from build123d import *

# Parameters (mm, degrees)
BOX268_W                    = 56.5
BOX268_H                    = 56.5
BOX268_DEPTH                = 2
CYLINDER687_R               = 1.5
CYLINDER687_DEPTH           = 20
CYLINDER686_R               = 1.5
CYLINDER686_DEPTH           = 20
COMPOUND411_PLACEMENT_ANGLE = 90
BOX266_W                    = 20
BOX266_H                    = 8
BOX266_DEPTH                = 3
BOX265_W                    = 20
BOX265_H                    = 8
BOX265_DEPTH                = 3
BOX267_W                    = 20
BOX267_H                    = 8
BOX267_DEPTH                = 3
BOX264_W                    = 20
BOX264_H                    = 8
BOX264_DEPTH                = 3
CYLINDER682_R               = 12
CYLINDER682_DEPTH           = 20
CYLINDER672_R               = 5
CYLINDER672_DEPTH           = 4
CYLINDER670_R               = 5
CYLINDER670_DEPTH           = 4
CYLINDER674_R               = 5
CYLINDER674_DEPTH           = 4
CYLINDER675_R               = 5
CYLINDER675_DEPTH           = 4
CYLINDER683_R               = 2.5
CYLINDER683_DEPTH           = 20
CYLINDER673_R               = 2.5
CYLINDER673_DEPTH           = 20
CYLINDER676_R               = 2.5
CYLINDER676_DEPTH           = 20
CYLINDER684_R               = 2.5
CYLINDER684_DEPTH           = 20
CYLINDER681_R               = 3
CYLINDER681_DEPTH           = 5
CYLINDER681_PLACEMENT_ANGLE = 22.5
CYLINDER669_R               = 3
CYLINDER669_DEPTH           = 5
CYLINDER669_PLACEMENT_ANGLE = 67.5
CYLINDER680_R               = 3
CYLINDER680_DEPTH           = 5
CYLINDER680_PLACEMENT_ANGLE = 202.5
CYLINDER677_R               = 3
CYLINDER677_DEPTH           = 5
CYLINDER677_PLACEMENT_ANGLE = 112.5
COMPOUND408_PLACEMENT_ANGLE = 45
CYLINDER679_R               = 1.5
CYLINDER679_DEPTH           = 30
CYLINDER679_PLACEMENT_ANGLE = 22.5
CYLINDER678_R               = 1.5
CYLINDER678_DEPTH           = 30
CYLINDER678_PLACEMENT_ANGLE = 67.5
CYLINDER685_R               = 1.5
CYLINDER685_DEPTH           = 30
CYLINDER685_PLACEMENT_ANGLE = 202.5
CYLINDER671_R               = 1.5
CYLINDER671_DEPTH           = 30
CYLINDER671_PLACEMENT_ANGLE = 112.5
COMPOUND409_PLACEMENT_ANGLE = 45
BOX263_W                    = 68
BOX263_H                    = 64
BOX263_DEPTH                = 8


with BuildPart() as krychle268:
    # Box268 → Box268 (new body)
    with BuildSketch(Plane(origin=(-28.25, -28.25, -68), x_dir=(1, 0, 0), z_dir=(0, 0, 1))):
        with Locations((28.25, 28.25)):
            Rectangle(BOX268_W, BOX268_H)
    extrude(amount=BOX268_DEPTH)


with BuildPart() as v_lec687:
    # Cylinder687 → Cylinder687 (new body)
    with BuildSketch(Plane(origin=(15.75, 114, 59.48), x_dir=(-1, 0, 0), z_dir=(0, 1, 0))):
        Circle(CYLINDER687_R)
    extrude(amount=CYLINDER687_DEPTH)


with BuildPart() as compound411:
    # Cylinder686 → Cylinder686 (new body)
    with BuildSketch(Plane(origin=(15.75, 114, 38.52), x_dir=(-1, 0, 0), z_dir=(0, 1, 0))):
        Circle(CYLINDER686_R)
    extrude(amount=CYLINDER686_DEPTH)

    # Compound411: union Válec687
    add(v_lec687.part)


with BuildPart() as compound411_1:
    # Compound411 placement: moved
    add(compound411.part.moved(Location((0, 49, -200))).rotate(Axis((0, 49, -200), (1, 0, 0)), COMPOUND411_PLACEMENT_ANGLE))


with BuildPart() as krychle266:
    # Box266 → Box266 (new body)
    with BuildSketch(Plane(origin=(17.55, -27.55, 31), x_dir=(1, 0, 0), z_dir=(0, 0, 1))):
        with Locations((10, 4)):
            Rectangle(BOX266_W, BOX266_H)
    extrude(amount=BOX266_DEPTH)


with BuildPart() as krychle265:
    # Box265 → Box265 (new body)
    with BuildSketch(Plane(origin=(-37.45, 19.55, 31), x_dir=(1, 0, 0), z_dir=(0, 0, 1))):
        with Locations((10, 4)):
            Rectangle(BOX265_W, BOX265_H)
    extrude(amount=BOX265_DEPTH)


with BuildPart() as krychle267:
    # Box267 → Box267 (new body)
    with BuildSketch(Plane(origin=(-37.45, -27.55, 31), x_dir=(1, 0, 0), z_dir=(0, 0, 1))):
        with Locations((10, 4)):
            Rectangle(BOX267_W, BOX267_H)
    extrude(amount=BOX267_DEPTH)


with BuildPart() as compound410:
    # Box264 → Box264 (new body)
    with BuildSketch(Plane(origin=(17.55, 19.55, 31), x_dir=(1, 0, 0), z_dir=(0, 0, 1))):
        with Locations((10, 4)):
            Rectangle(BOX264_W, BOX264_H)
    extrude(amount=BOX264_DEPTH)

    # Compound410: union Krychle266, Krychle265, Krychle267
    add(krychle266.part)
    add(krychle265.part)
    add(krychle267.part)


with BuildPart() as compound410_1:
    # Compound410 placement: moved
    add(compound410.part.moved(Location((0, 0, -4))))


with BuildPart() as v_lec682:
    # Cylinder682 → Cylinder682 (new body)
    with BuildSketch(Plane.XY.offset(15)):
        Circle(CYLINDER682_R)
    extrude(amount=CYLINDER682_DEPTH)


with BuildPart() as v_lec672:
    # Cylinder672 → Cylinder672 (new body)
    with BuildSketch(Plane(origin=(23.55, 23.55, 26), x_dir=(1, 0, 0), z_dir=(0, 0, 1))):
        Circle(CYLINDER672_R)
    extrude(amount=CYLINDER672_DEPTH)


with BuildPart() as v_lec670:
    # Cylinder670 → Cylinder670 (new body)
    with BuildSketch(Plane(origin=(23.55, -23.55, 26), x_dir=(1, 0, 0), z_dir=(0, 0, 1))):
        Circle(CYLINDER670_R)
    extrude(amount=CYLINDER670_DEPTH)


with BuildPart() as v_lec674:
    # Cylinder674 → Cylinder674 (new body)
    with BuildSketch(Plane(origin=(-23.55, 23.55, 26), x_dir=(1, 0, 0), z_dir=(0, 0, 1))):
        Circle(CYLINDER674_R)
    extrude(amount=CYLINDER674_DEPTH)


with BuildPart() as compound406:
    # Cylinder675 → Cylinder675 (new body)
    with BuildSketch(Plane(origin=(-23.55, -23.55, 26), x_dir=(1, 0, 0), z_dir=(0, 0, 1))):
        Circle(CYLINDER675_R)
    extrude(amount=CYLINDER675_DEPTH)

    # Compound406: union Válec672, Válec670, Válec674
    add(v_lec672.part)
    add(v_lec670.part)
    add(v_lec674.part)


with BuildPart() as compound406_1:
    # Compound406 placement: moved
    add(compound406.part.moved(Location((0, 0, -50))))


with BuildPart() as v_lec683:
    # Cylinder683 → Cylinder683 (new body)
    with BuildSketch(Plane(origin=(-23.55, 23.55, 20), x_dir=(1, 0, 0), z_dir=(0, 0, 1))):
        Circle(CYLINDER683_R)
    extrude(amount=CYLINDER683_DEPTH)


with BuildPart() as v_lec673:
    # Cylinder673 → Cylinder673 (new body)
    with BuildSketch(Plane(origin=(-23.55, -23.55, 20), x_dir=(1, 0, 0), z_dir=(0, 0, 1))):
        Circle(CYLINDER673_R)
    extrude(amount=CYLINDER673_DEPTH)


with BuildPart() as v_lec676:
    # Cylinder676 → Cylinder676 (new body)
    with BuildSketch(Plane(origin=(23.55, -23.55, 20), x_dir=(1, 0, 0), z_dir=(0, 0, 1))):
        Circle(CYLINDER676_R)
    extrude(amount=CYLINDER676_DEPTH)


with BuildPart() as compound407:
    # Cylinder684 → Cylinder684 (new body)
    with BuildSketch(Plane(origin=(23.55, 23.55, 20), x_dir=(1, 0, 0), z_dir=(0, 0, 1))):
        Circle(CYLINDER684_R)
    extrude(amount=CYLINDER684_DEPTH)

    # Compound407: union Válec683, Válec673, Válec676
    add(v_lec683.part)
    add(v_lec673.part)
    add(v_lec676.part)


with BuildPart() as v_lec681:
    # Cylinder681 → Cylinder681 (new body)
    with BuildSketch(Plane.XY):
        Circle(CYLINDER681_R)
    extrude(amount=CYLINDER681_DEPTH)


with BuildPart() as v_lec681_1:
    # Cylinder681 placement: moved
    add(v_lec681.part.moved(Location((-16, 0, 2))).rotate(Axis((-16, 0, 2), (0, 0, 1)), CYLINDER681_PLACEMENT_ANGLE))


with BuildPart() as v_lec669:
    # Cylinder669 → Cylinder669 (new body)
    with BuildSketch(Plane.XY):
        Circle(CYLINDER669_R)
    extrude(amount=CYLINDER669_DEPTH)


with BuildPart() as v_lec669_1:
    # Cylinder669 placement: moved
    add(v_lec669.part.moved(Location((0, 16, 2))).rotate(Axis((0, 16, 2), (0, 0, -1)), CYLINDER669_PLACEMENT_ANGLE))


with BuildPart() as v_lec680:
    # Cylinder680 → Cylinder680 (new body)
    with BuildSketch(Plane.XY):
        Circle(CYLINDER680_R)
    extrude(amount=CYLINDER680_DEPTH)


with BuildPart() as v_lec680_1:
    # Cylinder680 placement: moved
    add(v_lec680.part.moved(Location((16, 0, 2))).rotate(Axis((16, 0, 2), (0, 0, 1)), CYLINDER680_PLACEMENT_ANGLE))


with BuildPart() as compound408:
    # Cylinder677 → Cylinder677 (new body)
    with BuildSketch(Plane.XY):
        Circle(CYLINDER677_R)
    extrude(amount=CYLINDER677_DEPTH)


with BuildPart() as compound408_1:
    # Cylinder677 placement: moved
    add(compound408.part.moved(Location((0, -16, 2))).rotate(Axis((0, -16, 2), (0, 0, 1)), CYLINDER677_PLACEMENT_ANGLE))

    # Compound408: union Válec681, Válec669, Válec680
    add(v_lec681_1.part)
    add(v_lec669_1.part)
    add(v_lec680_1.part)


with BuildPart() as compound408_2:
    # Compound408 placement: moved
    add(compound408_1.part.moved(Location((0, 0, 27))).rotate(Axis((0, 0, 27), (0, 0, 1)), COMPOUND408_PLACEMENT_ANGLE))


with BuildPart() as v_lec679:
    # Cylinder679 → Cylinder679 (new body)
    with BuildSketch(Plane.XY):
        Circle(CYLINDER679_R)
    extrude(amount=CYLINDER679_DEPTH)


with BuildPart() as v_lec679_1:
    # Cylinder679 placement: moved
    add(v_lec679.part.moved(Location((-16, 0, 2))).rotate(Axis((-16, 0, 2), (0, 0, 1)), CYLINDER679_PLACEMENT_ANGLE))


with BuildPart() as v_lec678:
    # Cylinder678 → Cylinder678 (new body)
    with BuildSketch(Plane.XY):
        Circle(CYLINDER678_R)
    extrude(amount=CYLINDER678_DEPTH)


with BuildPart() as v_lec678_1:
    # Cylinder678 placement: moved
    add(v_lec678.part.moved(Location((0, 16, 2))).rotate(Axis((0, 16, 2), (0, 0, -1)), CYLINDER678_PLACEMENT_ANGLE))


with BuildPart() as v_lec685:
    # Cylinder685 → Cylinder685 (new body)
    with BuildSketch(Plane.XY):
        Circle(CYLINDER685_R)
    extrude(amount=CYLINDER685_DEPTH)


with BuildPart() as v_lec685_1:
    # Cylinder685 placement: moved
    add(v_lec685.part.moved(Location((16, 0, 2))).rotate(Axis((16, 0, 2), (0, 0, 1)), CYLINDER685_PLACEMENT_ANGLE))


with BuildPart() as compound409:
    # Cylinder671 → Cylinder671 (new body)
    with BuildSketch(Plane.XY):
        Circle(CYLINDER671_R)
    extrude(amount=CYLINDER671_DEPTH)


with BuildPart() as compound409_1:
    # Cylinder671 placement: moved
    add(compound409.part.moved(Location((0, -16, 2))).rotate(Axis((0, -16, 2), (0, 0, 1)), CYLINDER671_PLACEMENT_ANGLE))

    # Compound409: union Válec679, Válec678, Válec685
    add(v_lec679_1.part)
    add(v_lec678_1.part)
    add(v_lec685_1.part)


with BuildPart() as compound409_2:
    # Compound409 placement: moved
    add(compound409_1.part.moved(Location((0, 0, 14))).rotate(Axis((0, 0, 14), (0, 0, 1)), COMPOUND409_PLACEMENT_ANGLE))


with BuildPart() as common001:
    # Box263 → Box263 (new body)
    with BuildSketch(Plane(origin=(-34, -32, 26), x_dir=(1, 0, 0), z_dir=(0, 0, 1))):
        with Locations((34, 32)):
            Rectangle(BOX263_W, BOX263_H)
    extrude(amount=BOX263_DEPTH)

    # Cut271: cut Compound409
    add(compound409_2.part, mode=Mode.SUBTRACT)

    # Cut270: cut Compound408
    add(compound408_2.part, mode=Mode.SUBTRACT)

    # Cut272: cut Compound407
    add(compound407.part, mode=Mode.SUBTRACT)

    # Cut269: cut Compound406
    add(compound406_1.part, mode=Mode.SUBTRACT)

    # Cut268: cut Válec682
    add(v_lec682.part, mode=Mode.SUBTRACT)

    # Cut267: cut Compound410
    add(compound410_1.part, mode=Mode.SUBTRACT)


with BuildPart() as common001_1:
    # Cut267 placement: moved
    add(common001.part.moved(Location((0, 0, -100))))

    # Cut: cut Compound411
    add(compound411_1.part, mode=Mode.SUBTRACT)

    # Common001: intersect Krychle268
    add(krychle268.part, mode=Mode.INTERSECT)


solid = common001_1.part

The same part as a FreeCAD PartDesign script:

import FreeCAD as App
import Part
import Sketcher
from FreeCAD import Vector
Q = App.Units.Quantity

doc = App.newDocument("Part")
body = doc.addObject("PartDesign::Body", "Body")

sketch1 = body.newObject("Sketcher::SketchObject", "Sketch")
sketch1.AttachmentSupport = (doc.getObject("XY_Plane"), [""])
sketch1.MapMode = "FlatFace"
sketch1.AttachmentOffset = App.Placement(Vector(0, 0, -68), App.Rotation())
sketch1.addGeometry(Part.LineSegment(Vector(-28, 28, 0), Vector(-28, -28, 0)), False)
sketch1.addGeometry(Part.LineSegment(Vector(-28, -28, 0), Vector(28, -28, 0)), False)
sketch1.addGeometry(Part.LineSegment(Vector(28, -28, 0), Vector(28, 28, 0)), False)
sketch1.addGeometry(Part.LineSegment(Vector(28, 28, 0), Vector(-28, 28, 0)), False)
sketch1.addConstraint(Sketcher.Constraint("Coincident", 0, 2, 1, 1))
sketch1.addConstraint(Sketcher.Constraint("Coincident", 1, 2, 2, 1))
sketch1.addConstraint(Sketcher.Constraint("Coincident", 2, 2, 3, 1))
sketch1.addConstraint(Sketcher.Constraint("Coincident", 3, 2, 0, 1))
sketch1.addConstraint(Sketcher.Constraint("Vertical", 0))
sketch1.addConstraint(Sketcher.Constraint("Horizontal", 1))
sketch1.addConstraint(Sketcher.Constraint("Vertical", 2))
sketch1.addConstraint(Sketcher.Constraint("Horizontal", 3))
sketch1.addConstraint(Sketcher.Constraint("Symmetric", 0, 2, 2, 2, -1, 1))
sketch1.addConstraint(Sketcher.Constraint("Equal", 3, 0))
sketch1.addConstraint(Sketcher.Constraint("DistanceX", 1, 1, 1, 2, Q("56.5 mm")))
pad1 = body.newObject("PartDesign::Pad", "Pad")
pad1.Profile = sketch1
pad1.Length = 2
body2 = doc.addObject("PartDesign::Body", "Body001")

sketch2 = body2.newObject("Sketcher::SketchObject", "Sketch001")
sketch2.AttachmentSupport = (doc.getObject("XZ_Plane001"), [""])
sketch2.MapMode = "FlatFace"
sketch2.AttachmentOffset = App.Placement(Vector(0, 0, -114), App.Rotation())
sketch2.addGeometry(Part.Circle(Vector(15.8, 59.5, 0), Vector(0, 0, 1), 1.5), False)
sketch2.addConstraint(Sketcher.Constraint("Diameter", 0, Q("3 mm")))
sketch2.addConstraint(Sketcher.Constraint("DistanceX", -1, 1, 0, 3, Q("15.75 mm")))
sketch2.addConstraint(Sketcher.Constraint("DistanceY", -1, 1, 0, 3, Q("59.48 mm")))
pad2 = body2.newObject("PartDesign::Pad", "Pad001")
pad2.Profile = sketch2
pad2.Length = 20
pad2.Reversed = True
body3 = doc.addObject("PartDesign::Body", "Body002")
body3.AllowCompound = True

sketch3 = body3.newObject("Sketcher::SketchObject", "Sketch002")
sketch3.AttachmentSupport = (doc.getObject("XZ_Plane002"), [""])
sketch3.MapMode = "FlatFace"
sketch3.AttachmentOffset = App.Placement(Vector(0, 0, -114), App.Rotation())
sketch3.addGeometry(Part.Circle(Vector(15.8, 38.5, 0), Vector(0, 0, 1), 1.5), False)
sketch3.addConstraint(Sketcher.Constraint("Diameter", 0, Q("3 mm")))
sketch3.addConstraint(Sketcher.Constraint("DistanceX", -1, 1, 0, 3, Q("15.75 mm")))
sketch3.addConstraint(Sketcher.Constraint("DistanceY", -1, 1, 0, 3, Q("38.52 mm")))
pad3 = body3.newObject("PartDesign::Pad", "Pad002")
pad3.Profile = sketch3
pad3.Length = 20
pad3.Reversed = True
doc.recompute()

boolean = body3.newObject("PartDesign::Boolean", "Boolean")
boolean.Type = "Fuse"
boolean.addObjects([body2])
body4 = doc.addObject("PartDesign::Body", "Body003")
body4.AllowCompound = True
doc.recompute()

body3.Placement = App.Placement(Vector(0, 49, -200), App.Rotation(Vector(1, 0, 0), 90))
boolean2 = body4.newObject("PartDesign::Boolean", "Boolean001")
boolean2.Type = "Fuse"
boolean2.addObjects([body3])
body5 = doc.addObject("PartDesign::Body", "Body004")

sketch4 = body5.newObject("Sketcher::SketchObject", "Sketch003")
sketch4.AttachmentSupport = (doc.getObject("XY_Plane004"), [""])
sketch4.MapMode = "FlatFace"
sketch4.AttachmentOffset = App.Placement(Vector(0, 0, 31), App.Rotation())
sketch4.addGeometry(Part.LineSegment(Vector(18, -20, 0), Vector(18, -28, 0)), False)
sketch4.addGeometry(Part.LineSegment(Vector(18, -28, 0), Vector(38, -28, 0)), False)
sketch4.addGeometry(Part.LineSegment(Vector(38, -28, 0), Vector(38, -20, 0)), False)
sketch4.addGeometry(Part.LineSegment(Vector(38, -20, 0), Vector(18, -20, 0)), False)
sketch4.addConstraint(Sketcher.Constraint("Coincident", 0, 2, 1, 1))
sketch4.addConstraint(Sketcher.Constraint("Coincident", 1, 2, 2, 1))
sketch4.addConstraint(Sketcher.Constraint("Coincident", 2, 2, 3, 1))
sketch4.addConstraint(Sketcher.Constraint("Coincident", 3, 2, 0, 1))
sketch4.addConstraint(Sketcher.Constraint("Vertical", 0))
sketch4.addConstraint(Sketcher.Constraint("Horizontal", 1))
sketch4.addConstraint(Sketcher.Constraint("Vertical", 2))
sketch4.addConstraint(Sketcher.Constraint("Horizontal", 3))
sketch4.addConstraint(Sketcher.Constraint("DistanceX", 1, 1, 1, 2, Q("20 mm")))
sketch4.addConstraint(Sketcher.Constraint("DistanceY", 0, 2, 0, 1, Q("8 mm")))
sketch4.addConstraint(Sketcher.Constraint("DistanceX", -1, 1, 0, 2, Q("17.55 mm")))
sketch4.addConstraint(Sketcher.Constraint("DistanceY", 0, 2, -1, 1, Q("27.55 mm")))
pad4 = body5.newObject("PartDesign::Pad", "Pad003")
pad4.Profile = sketch4
pad4.Length = 3
body6 = doc.addObject("PartDesign::Body", "Body005")

sketch5 = body6.newObject("Sketcher::SketchObject", "Sketch004")
sketch5.AttachmentSupport = (doc.getObject("XY_Plane005"), [""])
sketch5.MapMode = "FlatFace"
sketch5.AttachmentOffset = App.Placement(Vector(0, 0, 31), App.Rotation())
sketch5.addGeometry(Part.LineSegment(Vector(-37, 28, 0), Vector(-37, 20, 0)), False)
sketch5.addGeometry(Part.LineSegment(Vector(-37, 20, 0), Vector(-17, 20, 0)), False)
sketch5.addGeometry(Part.LineSegment(Vector(-17, 20, 0), Vector(-17, 28, 0)), False)
sketch5.addGeometry(Part.LineSegment(Vector(-17, 28, 0), Vector(-37, 28, 0)), False)
sketch5.addConstraint(Sketcher.Constraint("Coincident", 0, 2, 1, 1))
sketch5.addConstraint(Sketcher.Constraint("Coincident", 1, 2, 2, 1))
sketch5.addConstraint(Sketcher.Constraint("Coincident", 2, 2, 3, 1))
sketch5.addConstraint(Sketcher.Constraint("Coincident", 3, 2, 0, 1))
sketch5.addConstraint(Sketcher.Constraint("Vertical", 0))
sketch5.addConstraint(Sketcher.Constraint("Horizontal", 1))
sketch5.addConstraint(Sketcher.Constraint("Vertical", 2))
sketch5.addConstraint(Sketcher.Constraint("Horizontal", 3))
sketch5.addConstraint(Sketcher.Constraint("DistanceX", 1, 1, 1, 2, Q("20 mm")))
sketch5.addConstraint(Sketcher.Constraint("DistanceY", 0, 2, 0, 1, Q("8 mm")))
sketch5.addConstraint(Sketcher.Constraint("DistanceX", 0, 2, -1, 1, Q("37.45 mm")))
sketch5.addConstraint(Sketcher.Constraint("DistanceY", -1, 1, 0, 2, Q("19.55 mm")))
pad5 = body6.newObject("PartDesign::Pad", "Pad004")
pad5.Profile = sketch5
pad5.Length = 3
body7 = doc.addObject("PartDesign::Body", "Body006")

sketch6 = body7.newObject("Sketcher::SketchObject", "Sketch005")
sketch6.AttachmentSupport = (doc.getObject("XY_Plane006"), [""])
sketch6.MapMode = "FlatFace"
sketch6.AttachmentOffset = App.Placement(Vector(0, 0, 31), App.Rotation())
sketch6.addGeometry(Part.LineSegment(Vector(-37, -20, 0), Vector(-37, -28, 0)), False)
sketch6.addGeometry(Part.LineSegment(Vector(-37, -28, 0), Vector(-17, -28, 0)), False)
sketch6.addGeometry(Part.LineSegment(Vector(-17, -28, 0), Vector(-17, -20, 0)), False)
sketch6.addGeometry(Part.LineSegment(Vector(-17, -20, 0), Vector(-37, -20, 0)), False)
sketch6.addConstraint(Sketcher.Constraint("Coincident", 0, 2, 1, 1))
sketch6.addConstraint(Sketcher.Constraint("Coincident", 1, 2, 2, 1))
sketch6.addConstraint(Sketcher.Constraint("Coincident", 2, 2, 3, 1))
sketch6.addConstraint(Sketcher.Constraint("Coincident", 3, 2, 0, 1))
sketch6.addConstraint(Sketcher.Constraint("Vertical", 0))
sketch6.addConstraint(Sketcher.Constraint("Horizontal", 1))
sketch6.addConstraint(Sketcher.Constraint("Vertical", 2))
sketch6.addConstraint(Sketcher.Constraint("Horizontal", 3))
sketch6.addConstraint(Sketcher.Constraint("DistanceX", 1, 1, 1, 2, Q("20 mm")))
sketch6.addConstraint(Sketcher.Constraint("DistanceY", 0, 2, 0, 1, Q("8 mm")))
sketch6.addConstraint(Sketcher.Constraint("DistanceX", 0, 2, -1, 1, Q("37.45 mm")))
sketch6.addConstraint(Sketcher.Constraint("DistanceY", 0, 2, -1, 1, Q("27.55 mm")))
pad6 = body7.newObject("PartDesign::Pad", "Pad005")
pad6.Profile = sketch6
pad6.Length = 3
body8 = doc.addObject("PartDesign::Body", "Body007")
body8.AllowCompound = True

sketch7 = body8.newObject("Sketcher::SketchObject", "Sketch006")
sketch7.AttachmentSupport = (doc.getObject("XY_Plane007"), [""])
sketch7.MapMode = "FlatFace"
sketch7.AttachmentOffset = App.Placement(Vector(0, 0, 31), App.Rotation())
sketch7.addGeometry(Part.LineSegment(Vector(18, 28, 0), Vector(18, 20, 0)), False)
sketch7.addGeometry(Part.LineSegment(Vector(18, 20, 0), Vector(38, 20, 0)), False)
sketch7.addGeometry(Part.LineSegment(Vector(38, 20, 0), Vector(38, 28, 0)), False)
sketch7.addGeometry(Part.LineSegment(Vector(38, 28, 0), Vector(18, 28, 0)), False)
sketch7.addConstraint(Sketcher.Constraint("Coincident", 0, 2, 1, 1))
sketch7.addConstraint(Sketcher.Constraint("Coincident", 1, 2, 2, 1))
sketch7.addConstraint(Sketcher.Constraint("Coincident", 2, 2, 3, 1))
sketch7.addConstraint(Sketcher.Constraint("Coincident", 3, 2, 0, 1))
sketch7.addConstraint(Sketcher.Constraint("Vertical", 0))
sketch7.addConstraint(Sketcher.Constraint("Horizontal", 1))
sketch7.addConstraint(Sketcher.Constraint("Vertical", 2))
sketch7.addConstraint(Sketcher.Constraint("Horizontal", 3))
sketch7.addConstraint(Sketcher.Constraint("DistanceX", 1, 1, 1, 2, Q("20 mm")))
sketch7.addConstraint(Sketcher.Constraint("DistanceY", 0, 2, 0, 1, Q("8 mm")))
sketch7.addConstraint(Sketcher.Constraint("DistanceX", -1, 1, 0, 2, Q("17.55 mm")))
sketch7.addConstraint(Sketcher.Constraint("DistanceY", -1, 1, 0, 2, Q("19.55 mm")))
pad7 = body8.newObject("PartDesign::Pad", "Pad006")
pad7.Profile = sketch7
pad7.Length = 3
doc.recompute()

boolean3 = body8.newObject("PartDesign::Boolean", "Boolean002")
boolean3.Type = "Fuse"
boolean3.addObjects([body5])
doc.recompute()

boolean4 = body8.newObject("PartDesign::Boolean", "Boolean003")
boolean4.Type = "Fuse"
boolean4.addObjects([body6])
doc.recompute()

boolean5 = body8.newObject("PartDesign::Boolean", "Boolean004")
boolean5.Type = "Fuse"
boolean5.addObjects([body7])
body9 = doc.addObject("PartDesign::Body", "Body008")
body9.AllowCompound = True
doc.recompute()

body8.Placement = App.Placement(Vector(0, 0, -4), App.Rotation(Vector(0, 0, 1), 0))
boolean6 = body9.newObject("PartDesign::Boolean", "Boolean005")
boolean6.Type = "Fuse"
boolean6.addObjects([body8])
body10 = doc.addObject("PartDesign::Body", "Body009")

sketch8 = body10.newObject("Sketcher::SketchObject", "Sketch007")
sketch8.AttachmentSupport = (doc.getObject("XY_Plane009"), [""])
sketch8.MapMode = "FlatFace"
sketch8.AttachmentOffset = App.Placement(Vector(0, 0, 15), App.Rotation())
sketch8.addGeometry(Part.Circle(Vector(0, 0, 0), Vector(0, 0, 1), 12), False)
sketch8.addConstraint(Sketcher.Constraint("Coincident", 0, 3, -1, 1))
sketch8.addConstraint(Sketcher.Constraint("Diameter", 0, Q("24 mm")))
pad8 = body10.newObject("PartDesign::Pad", "Pad007")
pad8.Profile = sketch8
pad8.Length = 20
body11 = doc.addObject("PartDesign::Body", "Body010")

sketch9 = body11.newObject("Sketcher::SketchObject", "Sketch008")
sketch9.AttachmentSupport = (doc.getObject("XY_Plane010"), [""])
sketch9.MapMode = "FlatFace"
sketch9.AttachmentOffset = App.Placement(Vector(0, 0, 26), App.Rotation())
sketch9.addGeometry(Part.Circle(Vector(24, 24, 0), Vector(0, 0, 1), 5), False)
sketch9.addConstraint(Sketcher.Constraint("Diameter", 0, Q("10 mm")))
sketch9.addConstraint(Sketcher.Constraint("DistanceX", -1, 1, 0, 3, Q("23.55 mm")))
sketch9.addConstraint(Sketcher.Constraint("DistanceY", -1, 1, 0, 3, Q("23.55 mm")))
pad9 = body11.newObject("PartDesign::Pad", "Pad008")
pad9.Profile = sketch9
pad9.Length = 4
body12 = doc.addObject("PartDesign::Body", "Body011")

sketch10 = body12.newObject("Sketcher::SketchObject", "Sketch009")
sketch10.AttachmentSupport = (doc.getObject("XY_Plane011"), [""])
sketch10.MapMode = "FlatFace"
sketch10.AttachmentOffset = App.Placement(Vector(0, 0, 26), App.Rotation())
sketch10.addGeometry(Part.Circle(Vector(24, -24, 0), Vector(0, 0, 1), 5), False)
sketch10.addConstraint(Sketcher.Constraint("Diameter", 0, Q("10 mm")))
sketch10.addConstraint(Sketcher.Constraint("DistanceX", -1, 1, 0, 3, Q("23.55 mm")))
sketch10.addConstraint(Sketcher.Constraint("DistanceY", 0, 3, -1, 1, Q("23.55 mm")))
pad10 = body12.newObject("PartDesign::Pad", "Pad009")
pad10.Profile = sketch10
pad10.Length = 4
body13 = doc.addObject("PartDesign::Body", "Body012")

sketch11 = body13.newObject("Sketcher::SketchObject", "Sketch010")
sketch11.AttachmentSupport = (doc.getObject("XY_Plane012"), [""])
sketch11.MapMode = "FlatFace"
sketch11.AttachmentOffset = App.Placement(Vector(0, 0, 26), App.Rotation())
sketch11.addGeometry(Part.Circle(Vector(-24, 24, 0), Vector(0, 0, 1), 5), False)
sketch11.addConstraint(Sketcher.Constraint("Diameter", 0, Q("10 mm")))
sketch11.addConstraint(Sketcher.Constraint("DistanceX", 0, 3, -1, 1, Q("23.55 mm")))
sketch11.addConstraint(Sketcher.Constraint("DistanceY", -1, 1, 0, 3, Q("23.55 mm")))
pad11 = body13.newObject("PartDesign::Pad", "Pad010")
pad11.Profile = sketch11
pad11.Length = 4
body14 = doc.addObject("PartDesign::Body", "Body013")
body14.AllowCompound = True

sketch12 = body14.newObject("Sketcher::SketchObject", "Sketch011")
sketch12.AttachmentSupport = (doc.getObject("XY_Plane013"), [""])
sketch12.MapMode = "FlatFace"
sketch12.AttachmentOffset = App.Placement(Vector(0, 0, 26), App.Rotation())
sketch12.addGeometry(Part.Circle(Vector(-24, -24, 0), Vector(0, 0, 1), 5), False)
sketch12.addConstraint(Sketcher.Constraint("Diameter", 0, Q("10 mm")))
sketch12.addConstraint(Sketcher.Constraint("DistanceX", 0, 3, -1, 1, Q("23.55 mm")))
sketch12.addConstraint(Sketcher.Constraint("DistanceY", 0, 3, -1, 1, Q("23.55 mm")))
pad12 = body14.newObject("PartDesign::Pad", "Pad011")
pad12.Profile = sketch12
pad12.Length = 4
doc.recompute()

boolean7 = body14.newObject("PartDesign::Boolean", "Boolean006")
boolean7.Type = "Fuse"
boolean7.addObjects([body11])
doc.recompute()

boolean8 = body14.newObject("PartDesign::Boolean", "Boolean007")
boolean8.Type = "Fuse"
boolean8.addObjects([body12])
doc.recompute()

boolean9 = body14.newObject("PartDesign::Boolean", "Boolean008")
boolean9.Type = "Fuse"
boolean9.addObjects([body13])
body15 = doc.addObject("PartDesign::Body", "Body014")
body15.AllowCompound = True
doc.recompute()

body14.Placement = App.Placement(Vector(0, 0, -50), App.Rotation(Vector(0, 0, 1), 0))
boolean10 = body15.newObject("PartDesign::Boolean", "Boolean009")
boolean10.Type = "Fuse"
boolean10.addObjects([body14])
body16 = doc.addObject("PartDesign::Body", "Body015")

sketch13 = body16.newObject("Sketcher::SketchObject", "Sketch012")
sketch13.AttachmentSupport = (doc.getObject("XY_Plane015"), [""])
sketch13.MapMode = "FlatFace"
sketch13.AttachmentOffset = App.Placement(Vector(0, 0, 20), App.Rotation())
sketch13.addGeometry(Part.Circle(Vector(-23.6, 23.6, 0), Vector(0, 0, 1), 2.5), False)
sketch13.addConstraint(Sketcher.Constraint("Diameter", 0, Q("5 mm")))
sketch13.addConstraint(Sketcher.Constraint("DistanceX", 0, 3, -1, 1, Q("23.55 mm")))
sketch13.addConstraint(Sketcher.Constraint("DistanceY", -1, 1, 0, 3, Q("23.55 mm")))
pad13 = body16.newObject("PartDesign::Pad", "Pad012")
pad13.Profile = sketch13
pad13.Length = 20
body17 = doc.addObject("PartDesign::Body", "Body016")

sketch14 = body17.newObject("Sketcher::SketchObject", "Sketch013")
sketch14.AttachmentSupport = (doc.getObject("XY_Plane016"), [""])
sketch14.MapMode = "FlatFace"
sketch14.AttachmentOffset = App.Placement(Vector(0, 0, 20), App.Rotation())
sketch14.addGeometry(Part.Circle(Vector(-23.6, -23.6, 0), Vector(0, 0, 1), 2.5), False)
sketch14.addConstraint(Sketcher.Constraint("Diameter", 0, Q("5 mm")))
sketch14.addConstraint(Sketcher.Constraint("DistanceX", 0, 3, -1, 1, Q("23.55 mm")))
sketch14.addConstraint(Sketcher.Constraint("DistanceY", 0, 3, -1, 1, Q("23.55 mm")))
pad14 = body17.newObject("PartDesign::Pad", "Pad013")
pad14.Profile = sketch14
pad14.Length = 20
body18 = doc.addObject("PartDesign::Body", "Body017")

sketch15 = body18.newObject("Sketcher::SketchObject", "Sketch014")
sketch15.AttachmentSupport = (doc.getObject("XY_Plane017"), [""])
sketch15.MapMode = "FlatFace"
sketch15.AttachmentOffset = App.Placement(Vector(0, 0, 20), App.Rotation())
sketch15.addGeometry(Part.Circle(Vector(23.6, -23.6, 0), Vector(0, 0, 1), 2.5), False)
sketch15.addConstraint(Sketcher.Constraint("Diameter", 0, Q("5 mm")))
sketch15.addConstraint(Sketcher.Constraint("DistanceX", -1, 1, 0, 3, Q("23.55 mm")))
sketch15.addConstraint(Sketcher.Constraint("DistanceY", 0, 3, -1, 1, Q("23.55 mm")))
pad15 = body18.newObject("PartDesign::Pad", "Pad014")
pad15.Profile = sketch15
pad15.Length = 20
body19 = doc.addObject("PartDesign::Body", "Body018")
body19.AllowCompound = True

sketch16 = body19.newObject("Sketcher::SketchObject", "Sketch015")
sketch16.AttachmentSupport = (doc.getObject("XY_Plane018"), [""])
sketch16.MapMode = "FlatFace"
sketch16.AttachmentOffset = App.Placement(Vector(0, 0, 20), App.Rotation())
sketch16.addGeometry(Part.Circle(Vector(23.6, 23.6, 0), Vector(0, 0, 1), 2.5), False)
sketch16.addConstraint(Sketcher.Constraint("Diameter", 0, Q("5 mm")))
sketch16.addConstraint(Sketcher.Constraint("DistanceX", -1, 1, 0, 3, Q("23.55 mm")))
sketch16.addConstraint(Sketcher.Constraint("DistanceY", -1, 1, 0, 3, Q("23.55 mm")))
pad16 = body19.newObject("PartDesign::Pad", "Pad015")
pad16.Profile = sketch16
pad16.Length = 20
doc.recompute()

boolean11 = body19.newObject("PartDesign::Boolean", "Boolean010")
boolean11.Type = "Fuse"
boolean11.addObjects([body16])
doc.recompute()

boolean12 = body19.newObject("PartDesign::Boolean", "Boolean011")
boolean12.Type = "Fuse"
boolean12.addObjects([body17])
doc.recompute()

boolean13 = body19.newObject("PartDesign::Boolean", "Boolean012")
boolean13.Type = "Fuse"
boolean13.addObjects([body18])
body20 = doc.addObject("PartDesign::Body", "Body019")

sketch17 = body20.newObject("Sketcher::SketchObject", "Sketch016")
sketch17.AttachmentSupport = (doc.getObject("XY_Plane019"), [""])
sketch17.MapMode = "FlatFace"
sketch17.addGeometry(Part.Circle(Vector(0, 0, 0), Vector(0, 0, 1), 3), False)
sketch17.addConstraint(Sketcher.Constraint("Coincident", 0, 3, -1, 1))
sketch17.addConstraint(Sketcher.Constraint("Diameter", 0, Q("6 mm")))
pad17 = body20.newObject("PartDesign::Pad", "Pad016")
pad17.Profile = sketch17
pad17.Length = 5
body21 = doc.addObject("PartDesign::Body", "Body020")
doc.recompute()

body20.Placement = App.Placement(Vector(-16, 0, 2), App.Rotation(Vector(0, 0, 1), 22.5))
boolean14 = body21.newObject("PartDesign::Boolean", "Boolean013")
boolean14.Type = "Fuse"
boolean14.addObjects([body20])
body22 = doc.addObject("PartDesign::Body", "Body021")

sketch18 = body22.newObject("Sketcher::SketchObject", "Sketch017")
sketch18.AttachmentSupport = (doc.getObject("XY_Plane021"), [""])
sketch18.MapMode = "FlatFace"
sketch18.addGeometry(Part.Circle(Vector(0, 0, 0), Vector(0, 0, 1), 3), False)
sketch18.addConstraint(Sketcher.Constraint("Coincident", 0, 3, -1, 1))
sketch18.addConstraint(Sketcher.Constraint("Diameter", 0, Q("6 mm")))
pad18 = body22.newObject("PartDesign::Pad", "Pad017")
pad18.Profile = sketch18
pad18.Length = 5
body23 = doc.addObject("PartDesign::Body", "Body022")
doc.recompute()

body22.Placement = App.Placement(Vector(0, 16, 2), App.Rotation(Vector(0, 0, -1), 67.5))
boolean15 = body23.newObject("PartDesign::Boolean", "Boolean014")
boolean15.Type = "Fuse"
boolean15.addObjects([body22])
body24 = doc.addObject("PartDesign::Body", "Body023")

sketch19 = body24.newObject("Sketcher::SketchObject", "Sketch018")
sketch19.AttachmentSupport = (doc.getObject("XY_Plane023"), [""])
sketch19.MapMode = "FlatFace"
sketch19.addGeometry(Part.Circle(Vector(0, 0, 0), Vector(0, 0, 1), 3), False)
sketch19.addConstraint(Sketcher.Constraint("Coincident", 0, 3, -1, 1))
sketch19.addConstraint(Sketcher.Constraint("Diameter", 0, Q("6 mm")))
pad19 = body24.newObject("PartDesign::Pad", "Pad018")
pad19.Profile = sketch19
pad19.Length = 5
body25 = doc.addObject("PartDesign::Body", "Body024")
doc.recompute()

body24.Placement = App.Placement(Vector(16, 0, 2), App.Rotation(Vector(0, 0, 1), 202.5))
boolean16 = body25.newObject("PartDesign::Boolean", "Boolean015")
boolean16.Type = "Fuse"
boolean16.addObjects([body24])
body26 = doc.addObject("PartDesign::Body", "Body025")

sketch20 = body26.newObject("Sketcher::SketchObject", "Sketch019")
sketch20.AttachmentSupport = (doc.getObject("XY_Plane025"), [""])
sketch20.MapMode = "FlatFace"
sketch20.addGeometry(Part.Circle(Vector(0, 0, 0), Vector(0, 0, 1), 3), False)
sketch20.addConstraint(Sketcher.Constraint("Coincident", 0, 3, -1, 1))
sketch20.addConstraint(Sketcher.Constraint("Diameter", 0, Q("6 mm")))
pad20 = body26.newObject("PartDesign::Pad", "Pad019")
pad20.Profile = sketch20
pad20.Length = 5
body27 = doc.addObject("PartDesign::Body", "Body026")
body27.AllowCompound = True
doc.recompute()

body26.Placement = App.Placement(Vector(0, -16, 2), App.Rotation(Vector(0, 0, 1), 112.5))
boolean17 = body27.newObject("PartDesign::Boolean", "Boolean016")
boolean17.Type = "Fuse"
boolean17.addObjects([body26])
doc.recompute()

boolean18 = body27.newObject("PartDesign::Boolean", "Boolean017")
boolean18.Type = "Fuse"
boolean18.addObjects([body21])
doc.recompute()

boolean19 = body27.newObject("PartDesign::Boolean", "Boolean018")
boolean19.Type = "Fuse"
boolean19.addObjects([body23])
doc.recompute()

boolean20 = body27.newObject("PartDesign::Boolean", "Boolean019")
boolean20.Type = "Fuse"
boolean20.addObjects([body25])
body28 = doc.addObject("PartDesign::Body", "Body027")
body28.AllowCompound = True
doc.recompute()

body27.Placement = App.Placement(Vector(0, 0, 27), App.Rotation(Vector(0, 0, 1), 45))
boolean21 = body28.newObject("PartDesign::Boolean", "Boolean020")
boolean21.Type = "Fuse"
boolean21.addObjects([body27])
body29 = doc.addObject("PartDesign::Body", "Body028")

sketch21 = body29.newObject("Sketcher::SketchObject", "Sketch020")
sketch21.AttachmentSupport = (doc.getObject("XY_Plane028"), [""])
sketch21.MapMode = "FlatFace"
sketch21.addGeometry(Part.Circle(Vector(0, 0, 0), Vector(0, 0, 1), 1.5), False)
sketch21.addConstraint(Sketcher.Constraint("Coincident", 0, 3, -1, 1))
sketch21.addConstraint(Sketcher.Constraint("Diameter", 0, Q("3 mm")))
pad21 = body29.newObject("PartDesign::Pad", "Pad020")
pad21.Profile = sketch21
pad21.Length = 30
body30 = doc.addObject("PartDesign::Body", "Body029")
doc.recompute()

body29.Placement = App.Placement(Vector(-16, 0, 2), App.Rotation(Vector(0, 0, 1), 22.5))
boolean22 = body30.newObject("PartDesign::Boolean", "Boolean021")
boolean22.Type = "Fuse"
boolean22.addObjects([body29])
body31 = doc.addObject("PartDesign::Body", "Body030")

sketch22 = body31.newObject("Sketcher::SketchObject", "Sketch021")
sketch22.AttachmentSupport = (doc.getObject("XY_Plane030"), [""])
sketch22.MapMode = "FlatFace"
sketch22.addGeometry(Part.Circle(Vector(0, 0, 0), Vector(0, 0, 1), 1.5), False)
sketch22.addConstraint(Sketcher.Constraint("Coincident", 0, 3, -1, 1))
sketch22.addConstraint(Sketcher.Constraint("Diameter", 0, Q("3 mm")))
pad22 = body31.newObject("PartDesign::Pad", "Pad021")
pad22.Profile = sketch22
pad22.Length = 30
body32 = doc.addObject("PartDesign::Body", "Body031")
doc.recompute()

body31.Placement = App.Placement(Vector(0, 16, 2), App.Rotation(Vector(0, 0, -1), 67.5))
boolean23 = body32.newObject("PartDesign::Boolean", "Boolean022")
boolean23.Type = "Fuse"
boolean23.addObjects([body31])
body33 = doc.addObject("PartDesign::Body", "Body032")

sketch23 = body33.newObject("Sketcher::SketchObject", "Sketch022")
sketch23.AttachmentSupport = (doc.getObject("XY_Plane032"), [""])
sketch23.MapMode = "FlatFace"
sketch23.addGeometry(Part.Circle(Vector(0, 0, 0), Vector(0, 0, 1), 1.5), False)
sketch23.addConstraint(Sketcher.Constraint("Coincident", 0, 3, -1, 1))
sketch23.addConstraint(Sketcher.Constraint("Diameter", 0, Q("3 mm")))
pad23 = body33.newObject("PartDesign::Pad", "Pad022")
pad23.Profile = sketch23
pad23.Length = 30
body34 = doc.addObject("PartDesign::Body", "Body033")
doc.recompute()

body33.Placement = App.Placement(Vector(16, 0, 2), App.Rotation(Vector(0, 0, 1), 202.5))
boolean24 = body34.newObject("PartDesign::Boolean", "Boolean023")
boolean24.Type = "Fuse"
boolean24.addObjects([body33])
body35 = doc.addObject("PartDesign::Body", "Body034")

sketch24 = body35.newObject("Sketcher::SketchObject", "Sketch023")
sketch24.AttachmentSupport = (doc.getObject("XY_Plane034"), [""])
sketch24.MapMode = "FlatFace"
sketch24.addGeometry(Part.Circle(Vector(0, 0, 0), Vector(0, 0, 1), 1.5), False)
sketch24.addConstraint(Sketcher.Constraint("Coincident", 0, 3, -1, 1))
sketch24.addConstraint(Sketcher.Constraint("Diameter", 0, Q("3 mm")))
pad24 = body35.newObject("PartDesign::Pad", "Pad023")
pad24.Profile = sketch24
pad24.Length = 30
body36 = doc.addObject("PartDesign::Body", "Body035")
body36.AllowCompound = True
doc.recompute()

body35.Placement = App.Placement(Vector(0, -16, 2), App.Rotation(Vector(0, 0, 1), 112.5))
boolean25 = body36.newObject("PartDesign::Boolean", "Boolean024")
boolean25.Type = "Fuse"
boolean25.addObjects([body35])
doc.recompute()

boolean26 = body36.newObject("PartDesign::Boolean", "Boolean025")
boolean26.Type = "Fuse"
boolean26.addObjects([body30])
doc.recompute()

boolean27 = body36.newObject("PartDesign::Boolean", "Boolean026")
boolean27.Type = "Fuse"
boolean27.addObjects([body32])
doc.recompute()

boolean28 = body36.newObject("PartDesign::Boolean", "Boolean027")
boolean28.Type = "Fuse"
boolean28.addObjects([body34])
body37 = doc.addObject("PartDesign::Body", "Body036")
body37.AllowCompound = True
doc.recompute()

body36.Placement = App.Placement(Vector(0, 0, 14), App.Rotation(Vector(0, 0, 1), 45))
boolean29 = body37.newObject("PartDesign::Boolean", "Boolean028")
boolean29.Type = "Fuse"
boolean29.addObjects([body36])
body38 = doc.addObject("PartDesign::Body", "Body037")

sketch25 = body38.newObject("Sketcher::SketchObject", "Sketch024")
sketch25.AttachmentSupport = (doc.getObject("XY_Plane037"), [""])
sketch25.MapMode = "FlatFace"
sketch25.AttachmentOffset = App.Placement(Vector(0, 0, 26), App.Rotation())
sketch25.addGeometry(Part.LineSegment(Vector(-34, 32, 0), Vector(-34, -32, 0)), False)
sketch25.addGeometry(Part.LineSegment(Vector(-34, -32, 0), Vector(34, -32, 0)), False)
sketch25.addGeometry(Part.LineSegment(Vector(34, -32, 0), Vector(34, 32, 0)), False)
sketch25.addGeometry(Part.LineSegment(Vector(34, 32, 0), Vector(-34, 32, 0)), False)
sketch25.addConstraint(Sketcher.Constraint("Coincident", 0, 2, 1, 1))
sketch25.addConstraint(Sketcher.Constraint("Coincident", 1, 2, 2, 1))
sketch25.addConstraint(Sketcher.Constraint("Coincident", 2, 2, 3, 1))
sketch25.addConstraint(Sketcher.Constraint("Coincident", 3, 2, 0, 1))
sketch25.addConstraint(Sketcher.Constraint("Vertical", 0))
sketch25.addConstraint(Sketcher.Constraint("Horizontal", 1))
sketch25.addConstraint(Sketcher.Constraint("Vertical", 2))
sketch25.addConstraint(Sketcher.Constraint("Horizontal", 3))
sketch25.addConstraint(Sketcher.Constraint("Symmetric", 0, 2, 2, 2, -1, 1))
sketch25.addConstraint(Sketcher.Constraint("DistanceX", 1, 1, 1, 2, Q("68 mm")))
sketch25.addConstraint(Sketcher.Constraint("DistanceY", 0, 2, 0, 1, Q("64 mm")))
pad25 = body38.newObject("PartDesign::Pad", "Pad024")
pad25.Profile = sketch25
pad25.Length = 8
doc.recompute()

boolean30 = body38.newObject("PartDesign::Boolean", "Boolean029")
boolean30.Type = "Cut"
boolean30.addObjects([body37])
doc.recompute()

boolean31 = body38.newObject("PartDesign::Boolean", "Boolean030")
boolean31.Type = "Cut"
boolean31.addObjects([body28])
doc.recompute()

boolean32 = body38.newObject("PartDesign::Boolean", "Boolean031")
boolean32.Type = "Cut"
boolean32.addObjects([body19])
doc.recompute()

boolean33 = body38.newObject("PartDesign::Boolean", "Boolean032")
boolean33.Type = "Cut"
boolean33.addObjects([body15])
doc.recompute()

boolean34 = body38.newObject("PartDesign::Boolean", "Boolean033")
boolean34.Type = "Cut"
boolean34.addObjects([body10])
doc.recompute()

boolean35 = body38.newObject("PartDesign::Boolean", "Boolean034")
boolean35.Type = "Cut"
boolean35.addObjects([body9])
body39 = doc.addObject("PartDesign::Body", "Body038")
doc.recompute()

body38.Placement = App.Placement(Vector(0, 0, -100), App.Rotation(Vector(0, 0, 1), 0))
boolean36 = body39.newObject("PartDesign::Boolean", "Boolean035")
boolean36.Type = "Fuse"
boolean36.addObjects([body38])
doc.recompute()

boolean37 = body39.newObject("PartDesign::Boolean", "Boolean036")
boolean37.Type = "Cut"
boolean37.addObjects([body4])
doc.recompute()

boolean38 = body39.newObject("PartDesign::Boolean", "Boolean037")
boolean38.Type = "Common"
boolean38.addObjects([body])

doc.recompute()
